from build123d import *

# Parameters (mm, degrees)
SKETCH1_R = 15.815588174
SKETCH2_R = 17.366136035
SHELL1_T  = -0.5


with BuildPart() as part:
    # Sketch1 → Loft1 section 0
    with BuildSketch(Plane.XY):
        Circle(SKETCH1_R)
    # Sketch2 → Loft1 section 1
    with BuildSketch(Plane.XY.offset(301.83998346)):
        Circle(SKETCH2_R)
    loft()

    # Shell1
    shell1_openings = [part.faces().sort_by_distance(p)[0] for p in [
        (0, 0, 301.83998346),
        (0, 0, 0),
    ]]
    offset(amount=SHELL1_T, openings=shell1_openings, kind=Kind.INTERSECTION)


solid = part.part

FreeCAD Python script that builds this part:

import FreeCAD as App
import Part
import Sketcher

V = App.Vector
Q = App.Units.Quantity


def faces_at(feature, points):
    """Names of the faces that lie closest to the given points."""
    faces = feature.Shape.Faces
    near = lambda p: min(range(len(faces)), key=lambda i: faces[i].distToShape(Part.Vertex(*p))[0])
    return sorted({f"Face{near(p) + 1}" for p in points})

doc = App.newDocument("Part")
body = doc.addObject("PartDesign::Body", "Body")

sketch1 = body.newObject("Sketcher::SketchObject", "Sketch")
sketch1.AttachmentSupport = (doc.getObject("XY_Plane"), [""])
sketch1.MapMode = "FlatFace"
sketch1.addGeometry(Part.Circle(V(0, 0, 0), V(0, 0, 1), 15.815588), False)
sketch1.addConstraint(Sketcher.Constraint("Coincident", 0, 3, -1, 1))
sketch1.addConstraint(Sketcher.Constraint("Diameter", 0, Q("31.631176 mm")))

sketch2 = body.newObject("Sketcher::SketchObject", "Sketch001")
sketch2.AttachmentSupport = (doc.getObject("XY_Plane"), [""])
sketch2.MapMode = "FlatFace"
sketch2.AttachmentOffset = App.Placement(V(0, 0, 301.839983), App.Rotation())
sketch2.addGeometry(Part.Circle(V(0, 0, 0), V(0, 0, 1), 17.366136), False)
sketch2.addConstraint(Sketcher.Constraint("Coincident", 0, 3, -1, 1))
sketch2.addConstraint(Sketcher.Constraint("Diameter", 0, Q("34.732272 mm")))

additiveloft = body.newObject("PartDesign::AdditiveLoft", "AdditiveLoft")
additiveloft.Profile = sketch1
additiveloft.Sections = [sketch2]
doc.recompute()

thickness = body.newObject("PartDesign::Thickness", "Thickness")
thickness.Base = (additiveloft, faces_at(additiveloft, [(0, 0, 301.84), (0, 0, 0)]))
thickness.Value = 0.5
thickness.Reversed = True
thickness.Join = "Intersection"

doc.recompute()
